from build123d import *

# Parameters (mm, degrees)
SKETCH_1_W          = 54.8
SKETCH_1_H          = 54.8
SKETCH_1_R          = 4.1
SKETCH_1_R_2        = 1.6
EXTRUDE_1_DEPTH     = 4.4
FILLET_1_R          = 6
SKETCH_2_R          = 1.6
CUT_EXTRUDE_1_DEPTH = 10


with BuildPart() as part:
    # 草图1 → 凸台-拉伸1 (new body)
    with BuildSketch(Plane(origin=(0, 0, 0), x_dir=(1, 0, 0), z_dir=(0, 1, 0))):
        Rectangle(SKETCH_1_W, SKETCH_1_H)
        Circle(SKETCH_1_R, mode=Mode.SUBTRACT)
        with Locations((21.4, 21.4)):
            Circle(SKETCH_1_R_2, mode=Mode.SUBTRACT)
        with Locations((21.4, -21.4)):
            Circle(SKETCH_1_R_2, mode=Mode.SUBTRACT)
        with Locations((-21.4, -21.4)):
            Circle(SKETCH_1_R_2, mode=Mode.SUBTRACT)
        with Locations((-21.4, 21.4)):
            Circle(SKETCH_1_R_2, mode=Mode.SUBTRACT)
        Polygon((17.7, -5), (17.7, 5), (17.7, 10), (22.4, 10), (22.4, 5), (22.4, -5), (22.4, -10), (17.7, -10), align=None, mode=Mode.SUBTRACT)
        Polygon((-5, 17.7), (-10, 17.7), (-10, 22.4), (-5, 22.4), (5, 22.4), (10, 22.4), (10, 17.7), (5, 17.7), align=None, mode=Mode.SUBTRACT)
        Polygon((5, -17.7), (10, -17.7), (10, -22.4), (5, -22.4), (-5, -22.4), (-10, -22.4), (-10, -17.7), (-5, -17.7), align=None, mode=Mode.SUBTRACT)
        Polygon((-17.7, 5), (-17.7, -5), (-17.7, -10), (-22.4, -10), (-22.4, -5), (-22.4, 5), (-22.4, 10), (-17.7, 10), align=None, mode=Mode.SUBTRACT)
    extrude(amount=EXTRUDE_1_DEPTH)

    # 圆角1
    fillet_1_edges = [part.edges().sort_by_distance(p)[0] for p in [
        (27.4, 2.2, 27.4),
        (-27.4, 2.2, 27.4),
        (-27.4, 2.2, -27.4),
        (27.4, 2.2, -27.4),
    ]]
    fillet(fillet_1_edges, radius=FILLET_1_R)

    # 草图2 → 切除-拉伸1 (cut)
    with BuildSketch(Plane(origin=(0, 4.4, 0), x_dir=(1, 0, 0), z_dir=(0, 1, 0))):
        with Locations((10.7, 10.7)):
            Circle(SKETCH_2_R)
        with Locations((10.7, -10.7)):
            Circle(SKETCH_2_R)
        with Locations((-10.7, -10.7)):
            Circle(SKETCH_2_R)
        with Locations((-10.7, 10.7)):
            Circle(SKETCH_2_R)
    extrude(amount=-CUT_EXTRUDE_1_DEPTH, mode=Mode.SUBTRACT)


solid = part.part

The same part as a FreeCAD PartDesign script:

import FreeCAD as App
import Part
import Sketcher
Q = App.Units.Quantity


def edges_at(feature, points):
    """Names of the edges that pass closest to the given points."""
    edges = feature.Shape.Edges
    near = lambda p: min(range(len(edges)), key=lambda i: edges[i].distToShape(Part.Vertex(*p))[0])
    return sorted({f"Edge{near(p) + 1}" for p in points})


def add_polygon(sketch, points):
    """Adds a closed chain of lines whose ends are joined by coincident constraints."""
    first, n = sketch.GeometryCount, len(points)
    for a, b in zip(points, points[1:] + points[:1]):
        sketch.addGeometry(Part.LineSegment(App.Vector(*a, 0), App.Vector(*b, 0)), False)
    for i in range(n):
        sketch.addConstraint(Sketcher.Constraint("Coincident", first + i, 2, first + (i + 1) % n, 1))

doc = App.newDocument("Part")
body = doc.addObject("PartDesign::Body", "Body")

sketch1 = body.newObject("Sketcher::SketchObject", "Sketch")
sketch1.AttachmentSupport = (doc.getObject("XZ_Plane"), [""])
sketch1.MapMode = "FlatFace"
add_polygon(sketch1, [(-27.4, -27.4), (-27.4, 27.4), (27.4, 27.4), (27.4, -27.4)])
sketch1.addGeometry(Part.Circle(App.Vector(-21.4, 21.4, 0), App.Vector(0, 0, 1), 1.6), False)
add_polygon(sketch1, [(-10, 17.7), (10, 17.7), (10, 22.4), (-10, 22.4)])
sketch1.addGeometry(Part.Circle(App.Vector(21.4, 21.4, 0), App.Vector(0, 0, 1), 1.6), False)
add_polygon(sketch1, [(-17.7, -10), (-17.7, 10), (-22.4, 10), (-22.4, -10)])
sketch1.addGeometry(Part.Circle(App.Vector(-21.4, -21.4, 0), App.Vector(0, 0, 1), 1.6), False)
sketch1.addGeometry(Part.Circle(App.Vector(0, 0, 0), App.Vector(0, 0, 1), 4.1), False)
add_polygon(sketch1, [(17.7, 10), (17.7, -10), (22.4, -10), (22.4, 10)])
add_polygon(sketch1, [(10, -17.7), (-10, -17.7), (-10, -22.4), (10, -22.4)])
sketch1.addGeometry(Part.Circle(App.Vector(21.4, -21.4, 0), App.Vector(0, 0, 1), 1.6), False)
sketch1.addConstraint([
    Sketcher.Constraint("Vertical", 0),
    Sketcher.Constraint("Horizontal", 1),
    Sketcher.Constraint("Vertical", 2),
    Sketcher.Constraint("Horizontal", 3),
    Sketcher.Constraint("Horizontal", 5),
    Sketcher.Constraint("Vertical", 6),
    Sketcher.Constraint("Horizontal", 7),
    Sketcher.Constraint("Vertical", 8),
    Sketcher.Constraint("Vertical", 10),
    Sketcher.Constraint("Horizontal", 11),
    Sketcher.Constraint("Vertical", 12),
    Sketcher.Constraint("Horizontal", 13),
    Sketcher.Constraint("Vertical", 16),
    Sketcher.Constraint("Horizontal", 17),
    Sketcher.Constraint("Vertical", 18),
    Sketcher.Constraint("Horizontal", 19),
    Sketcher.Constraint("Horizontal", 20),
    Sketcher.Constraint("Vertical", 21),
    Sketcher.Constraint("Horizontal", 22),
    Sketcher.Constraint("Vertical", 23),
    Sketcher.Constraint("Coincident", 15, 3, -1, 1),
    Sketcher.Constraint("Equal", 4, 9),
    Sketcher.Constraint("Equal", 9, 14),
    Sketcher.Constraint("Equal", 14, 24),
    Sketcher.Constraint("Symmetric", 9, 3, 14, 3, -1, 1),
    Sketcher.Constraint("Symmetric", 4, 3, 24, 3, -1, 1),
    Sketcher.Constraint("Symmetric", 0, 2, 2, 2, -1, 1),
    Sketcher.Constraint("Symmetric", 10, 2, 16, 2, -1, 1),
    Sketcher.Constraint("Symmetric", 12, 2, 18, 2, -1, 1),
    Sketcher.Constraint("Symmetric", 5, 2, 20, 2, -1, 1),
    Sketcher.Constraint("Symmetric", 7, 2, 22, 2, -1, 1),
    Sketcher.Constraint("Symmetric", 4, 3, 9, 3, -2),
    Sketcher.Constraint("Horizontal", 13, 2, 16, 2),
    Sketcher.Constraint("Vertical", 8, 2, 20, 2),
    Sketcher.Constraint("Equal", 3, 0),
    Sketcher.Constraint("Equal", 19, 6),
    Sketcher.Constraint("Equal", 22, 10),
    Sketcher.Constraint("Diameter", 4, Q("3.2 mm")),
    Sketcher.Constraint("Diameter", 15, Q("8.2 mm")),
    Sketcher.Constraint("DistanceX", 5, 1, 5, 2, Q("20 mm")),
    Sketcher.Constraint("DistanceX", 1, 1, 1, 2, Q("54.8 mm")),
    Sketcher.Constraint("DistanceX", 11, 2, 11, 1, Q("4.7 mm")),
    Sketcher.Constraint("DistanceX", 0, 2, 4, 3, Q("6 mm")),
    Sketcher.Constraint("DistanceY", 4, 3, 0, 2, Q("6 mm")),
    Sketcher.Constraint("DistanceY", 9, 3, 6, 2, Q("1 mm")),
    Sketcher.Constraint("DistanceX", 11, 2, 4, 3, Q("1 mm")),
])
pad1 = body.newObject("PartDesign::Pad", "Pad")
pad1.Profile = sketch1
pad1.Length = 4.4
pad1.Reversed = True
doc.recompute()

fillet = body.newObject("PartDesign::Fillet", "Fillet")
fillet.Base = (pad1, edges_at(pad1, [
    (27.4, 2.2, 27.4),
    (-27.4, 2.2, 27.4),
    (-27.4, 2.2, -27.4),
    (27.4, 2.2, -27.4),
]))
fillet.Radius = 6

sketch2 = body.newObject("Sketcher::SketchObject", "Sketch001")
sketch2.AttachmentSupport = (doc.getObject("XZ_Plane"), [""])
sketch2.MapMode = "FlatFace"
sketch2.AttachmentOffset = App.Placement(App.Vector(0, 0, -4.4), App.Rotation())
sketch2.addGeometry([
    Part.Circle(App.Vector(10.7, -10.7, 0), App.Vector(0, 0, 1), 1.6),
    Part.Circle(App.Vector(10.7, 10.7, 0), App.Vector(0, 0, 1), 1.6),
    Part.Circle(App.Vector(-10.7, 10.7, 0), App.Vector(0, 0, 1), 1.6),
    Part.Circle(App.Vector(-10.7, -10.7, 0), App.Vector(0, 0, 1), 1.6),
], False)
sketch2.addConstraint([
    Sketcher.Constraint("Equal", 0, 1),
    Sketcher.Constraint("Equal", 1, 2),
    Sketcher.Constraint("Equal", 2, 3),
    Sketcher.Constraint("Symmetric", 0, 3, 2, 3, -1, 1),
    Sketcher.Constraint("Symmetric", 1, 3, 3, 3, -1, 1),
    Sketcher.Constraint("Symmetric", 1, 3, 2, 3, -2),
    Sketcher.Constraint("Diameter", 0, Q("3.2 mm")),
    Sketcher.Constraint("DistanceX", -1, 1, 0, 3, Q("10.7 mm")),
    Sketcher.Constraint("DistanceY", 0, 3, -1, 1, Q("10.7 mm")),
])
pocket1 = body.newObject("PartDesign::Pocket", "Pocket")
pocket1.Profile = sketch2
pocket1.Length = 10
pocket1.Reversed = True

doc.recompute()
